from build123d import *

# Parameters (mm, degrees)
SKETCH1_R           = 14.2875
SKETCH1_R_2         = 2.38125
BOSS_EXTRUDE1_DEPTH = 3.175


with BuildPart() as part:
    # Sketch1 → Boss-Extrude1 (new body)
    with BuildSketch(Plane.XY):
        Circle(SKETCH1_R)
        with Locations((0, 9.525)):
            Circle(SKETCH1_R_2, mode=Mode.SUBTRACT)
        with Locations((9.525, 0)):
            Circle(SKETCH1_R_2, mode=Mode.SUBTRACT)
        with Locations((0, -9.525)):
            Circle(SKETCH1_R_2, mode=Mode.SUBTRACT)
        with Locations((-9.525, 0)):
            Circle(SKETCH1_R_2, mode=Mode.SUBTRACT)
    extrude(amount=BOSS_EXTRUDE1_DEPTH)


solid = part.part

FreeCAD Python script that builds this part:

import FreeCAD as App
import Part
import Sketcher

V = App.Vector
Q = App.Units.Quantity

doc = App.newDocument("Part")
params = doc.addObject("Spreadsheet::Sheet", "Params")
for row, (alias, value) in enumerate([
    ("sketch1_diameter", "1.125 in"),
    ("sketch1_diameter2", "0.1875 in"),
    ("pad1_length", "0.125 in"),
], start=1):
    params.set(f"A{row}", alias)
    params.set(f"B{row}", "=" + value)
    params.setAlias(f"B{row}", alias)

body = doc.addObject("PartDesign::Body", "Body")

# Sketch on XY plane
sketch1 = body.newObject("Sketcher::SketchObject", "Sketch")
sketch1.AttachmentSupport = (doc.getObject("XY_Plane"), [""])
sketch1.MapMode = "FlatFace"
sketch1.addGeometry([
    Part.Circle(V(0, 0, 0), V(0, 0, 1), 14.2875),  # 0
    Part.Circle(V(0, -9.525, 0), V(0, 0, 1), 2.38125),  # 1
    Part.Circle(V(-9.525, 0, 0), V(0, 0, 1), 2.38125),  # 2
    Part.Circle(V(9.525, 0, 0), V(0, 0, 1), 2.38125),  # 3
    Part.Circle(V(0, 9.525, 0), V(0, 0, 1), 2.38125),  # 4
], False)
sketch1.addConstraint([
    Sketcher.Constraint("Coincident", 0, 3, -1, 1),
    Sketcher.Constraint("Equal", 1, 2),
    Sketcher.Constraint("Equal", 2, 3),
    Sketcher.Constraint("Equal", 3, 4),
    Sketcher.Constraint("Symmetric", 2, 3, 3, 3, -1, 1),
    Sketcher.Constraint("Symmetric", 1, 3, 4, 3, -1, 1),
    Sketcher.Constraint("PointOnObject", 1, 3, -2),
    Sketcher.Constraint("PointOnObject", 2, 3, -1),
    Sketcher.Constraint("Diameter", 0, Q("1.125 in")),
    Sketcher.Constraint("Diameter", 1, Q("0.1875 in")),
    Sketcher.Constraint("DistanceX", 2, 3, 3, 3, Q("0.75 in")),
    Sketcher.Constraint("DistanceY", 1, 3, 4, 3, Q("0.75 in")),
])
sketch1.setExpression("Constraints[8]", "Params.sketch1_diameter")
sketch1.setExpression("Constraints[9]", "Params.sketch1_diameter2")
pad1 = body.newObject("PartDesign::Pad", "Pad")
pad1.Profile = sketch1
pad1.setExpression("Length", "Params.pad1_length")

doc.recompute()
